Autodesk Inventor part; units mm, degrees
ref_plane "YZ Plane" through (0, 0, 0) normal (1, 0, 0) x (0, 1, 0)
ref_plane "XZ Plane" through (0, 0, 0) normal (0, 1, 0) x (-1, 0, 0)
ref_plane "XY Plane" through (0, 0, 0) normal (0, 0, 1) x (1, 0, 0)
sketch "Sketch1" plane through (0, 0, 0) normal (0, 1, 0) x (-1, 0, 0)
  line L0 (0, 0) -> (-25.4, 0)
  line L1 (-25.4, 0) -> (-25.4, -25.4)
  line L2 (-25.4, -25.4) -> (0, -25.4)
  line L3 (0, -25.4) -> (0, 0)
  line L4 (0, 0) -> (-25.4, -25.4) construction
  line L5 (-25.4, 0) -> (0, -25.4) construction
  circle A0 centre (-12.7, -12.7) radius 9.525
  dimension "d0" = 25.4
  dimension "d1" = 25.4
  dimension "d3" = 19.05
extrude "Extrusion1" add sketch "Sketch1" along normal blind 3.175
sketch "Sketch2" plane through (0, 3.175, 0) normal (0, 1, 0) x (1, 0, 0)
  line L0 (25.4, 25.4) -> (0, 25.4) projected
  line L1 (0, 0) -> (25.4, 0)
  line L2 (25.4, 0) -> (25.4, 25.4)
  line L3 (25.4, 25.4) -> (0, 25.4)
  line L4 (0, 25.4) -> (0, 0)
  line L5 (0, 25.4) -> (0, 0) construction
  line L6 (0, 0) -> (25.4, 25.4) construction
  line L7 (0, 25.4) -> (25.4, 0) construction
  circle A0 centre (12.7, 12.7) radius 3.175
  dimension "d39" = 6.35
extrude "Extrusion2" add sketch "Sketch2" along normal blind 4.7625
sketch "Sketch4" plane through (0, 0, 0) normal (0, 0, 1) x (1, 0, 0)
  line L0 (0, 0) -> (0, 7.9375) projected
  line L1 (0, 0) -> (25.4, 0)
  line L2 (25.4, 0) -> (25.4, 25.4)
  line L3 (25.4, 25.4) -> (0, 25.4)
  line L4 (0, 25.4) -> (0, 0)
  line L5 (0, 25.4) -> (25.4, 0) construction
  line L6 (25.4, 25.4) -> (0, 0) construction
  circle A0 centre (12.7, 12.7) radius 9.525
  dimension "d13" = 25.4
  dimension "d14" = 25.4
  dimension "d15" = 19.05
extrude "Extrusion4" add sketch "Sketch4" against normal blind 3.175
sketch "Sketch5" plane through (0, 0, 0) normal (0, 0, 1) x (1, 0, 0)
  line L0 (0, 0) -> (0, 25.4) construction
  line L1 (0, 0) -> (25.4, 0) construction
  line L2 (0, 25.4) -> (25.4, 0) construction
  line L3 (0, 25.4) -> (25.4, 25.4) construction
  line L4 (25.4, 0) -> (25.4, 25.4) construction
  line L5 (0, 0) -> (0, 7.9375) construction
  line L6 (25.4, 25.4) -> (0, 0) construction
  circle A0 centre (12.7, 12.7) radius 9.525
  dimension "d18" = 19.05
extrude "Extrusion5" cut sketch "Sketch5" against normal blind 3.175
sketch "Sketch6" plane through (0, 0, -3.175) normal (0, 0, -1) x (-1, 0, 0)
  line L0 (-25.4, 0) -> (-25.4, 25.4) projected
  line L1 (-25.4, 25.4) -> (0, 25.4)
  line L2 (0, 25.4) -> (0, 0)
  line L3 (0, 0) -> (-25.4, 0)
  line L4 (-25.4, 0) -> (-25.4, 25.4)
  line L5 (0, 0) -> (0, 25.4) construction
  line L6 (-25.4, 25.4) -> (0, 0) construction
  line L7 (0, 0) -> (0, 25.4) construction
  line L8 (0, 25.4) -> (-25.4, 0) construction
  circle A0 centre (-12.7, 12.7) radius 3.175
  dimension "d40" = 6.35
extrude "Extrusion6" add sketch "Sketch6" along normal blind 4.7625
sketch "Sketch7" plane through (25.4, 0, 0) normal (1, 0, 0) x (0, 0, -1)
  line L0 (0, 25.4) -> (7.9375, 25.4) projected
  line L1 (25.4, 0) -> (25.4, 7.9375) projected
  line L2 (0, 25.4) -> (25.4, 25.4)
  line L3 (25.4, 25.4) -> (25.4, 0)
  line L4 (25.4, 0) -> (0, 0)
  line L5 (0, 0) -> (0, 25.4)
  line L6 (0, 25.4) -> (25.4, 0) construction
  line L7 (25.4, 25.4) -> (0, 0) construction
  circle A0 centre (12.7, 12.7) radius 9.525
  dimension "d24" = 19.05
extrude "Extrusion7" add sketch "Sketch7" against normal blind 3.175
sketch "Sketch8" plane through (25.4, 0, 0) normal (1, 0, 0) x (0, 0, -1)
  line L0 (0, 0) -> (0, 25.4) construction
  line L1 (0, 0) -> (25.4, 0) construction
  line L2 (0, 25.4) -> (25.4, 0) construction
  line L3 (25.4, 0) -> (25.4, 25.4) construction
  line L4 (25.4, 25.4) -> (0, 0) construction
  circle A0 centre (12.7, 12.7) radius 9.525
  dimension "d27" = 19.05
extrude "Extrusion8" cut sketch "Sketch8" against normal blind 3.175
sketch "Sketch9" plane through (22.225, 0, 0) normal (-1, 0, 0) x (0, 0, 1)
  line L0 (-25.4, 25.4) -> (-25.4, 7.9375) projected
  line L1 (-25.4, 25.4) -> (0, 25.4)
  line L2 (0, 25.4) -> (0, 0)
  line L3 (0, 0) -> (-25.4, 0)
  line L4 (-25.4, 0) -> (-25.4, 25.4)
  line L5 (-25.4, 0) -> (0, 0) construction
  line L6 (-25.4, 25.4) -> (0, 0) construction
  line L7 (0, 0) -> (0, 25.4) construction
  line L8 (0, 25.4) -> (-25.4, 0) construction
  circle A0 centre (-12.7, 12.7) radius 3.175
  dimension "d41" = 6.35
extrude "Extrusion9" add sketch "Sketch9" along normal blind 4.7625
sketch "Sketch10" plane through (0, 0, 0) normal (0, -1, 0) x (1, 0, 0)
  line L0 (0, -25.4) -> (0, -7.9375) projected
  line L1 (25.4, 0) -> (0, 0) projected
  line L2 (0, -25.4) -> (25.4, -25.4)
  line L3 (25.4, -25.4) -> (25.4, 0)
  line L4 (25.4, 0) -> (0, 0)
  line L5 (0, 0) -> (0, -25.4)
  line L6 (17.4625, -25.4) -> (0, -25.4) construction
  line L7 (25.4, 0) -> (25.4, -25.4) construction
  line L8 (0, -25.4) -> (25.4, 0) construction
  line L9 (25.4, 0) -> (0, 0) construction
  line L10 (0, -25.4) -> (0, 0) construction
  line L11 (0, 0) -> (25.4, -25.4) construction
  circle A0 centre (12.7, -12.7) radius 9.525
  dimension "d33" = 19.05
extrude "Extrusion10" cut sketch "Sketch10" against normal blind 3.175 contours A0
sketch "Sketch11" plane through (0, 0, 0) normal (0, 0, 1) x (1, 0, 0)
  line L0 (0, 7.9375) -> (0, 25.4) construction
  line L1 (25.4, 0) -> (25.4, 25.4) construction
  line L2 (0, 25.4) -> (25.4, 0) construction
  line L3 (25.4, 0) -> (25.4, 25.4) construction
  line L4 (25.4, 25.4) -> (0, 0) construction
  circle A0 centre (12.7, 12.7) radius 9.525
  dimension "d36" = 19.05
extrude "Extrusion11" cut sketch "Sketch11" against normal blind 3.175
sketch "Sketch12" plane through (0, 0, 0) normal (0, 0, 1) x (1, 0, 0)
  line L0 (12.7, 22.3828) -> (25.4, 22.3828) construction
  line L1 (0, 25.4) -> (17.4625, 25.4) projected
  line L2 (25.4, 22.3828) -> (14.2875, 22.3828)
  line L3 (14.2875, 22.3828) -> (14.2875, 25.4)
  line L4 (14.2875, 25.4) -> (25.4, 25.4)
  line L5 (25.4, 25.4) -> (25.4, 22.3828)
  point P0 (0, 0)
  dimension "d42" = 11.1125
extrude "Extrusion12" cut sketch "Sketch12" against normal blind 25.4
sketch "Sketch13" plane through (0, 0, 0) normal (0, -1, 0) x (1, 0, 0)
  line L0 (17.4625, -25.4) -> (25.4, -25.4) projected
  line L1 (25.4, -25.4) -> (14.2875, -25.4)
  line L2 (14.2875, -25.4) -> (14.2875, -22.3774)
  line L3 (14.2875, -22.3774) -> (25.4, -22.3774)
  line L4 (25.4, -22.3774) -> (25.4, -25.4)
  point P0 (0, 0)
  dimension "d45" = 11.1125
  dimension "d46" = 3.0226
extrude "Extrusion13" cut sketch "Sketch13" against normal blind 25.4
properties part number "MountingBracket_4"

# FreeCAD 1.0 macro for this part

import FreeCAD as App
import Part
import Sketcher

V = App.Vector
Q = App.Units.Quantity

doc = App.newDocument("Part")
params = doc.addObject("Spreadsheet::Sheet", "Params")
for row, (alias, value) in enumerate([
    ("sketch1_diameter", "0.75 in"),
    ("sketch1_width", "1 in"),
    ("pad1_length", "0.125 in"),
    ("sketch2_diameter", "0.25 in"),
    ("sketch2_width", "1 in"),
    ("pad2_length", "0.1875 in"),
    ("sketch3_diameter", "0.75 in"),
    ("sketch3_width", "1 in"),
    ("pad3_length", "0.125 in"),
    ("sketch4_diameter", "0.75 in"),
    ("pocket1_length", "0.125 in"),
    ("sketch5_diameter", "0.25 in"),
    ("sketch5_width", "1 in"),
    ("pad4_length", "0.1875 in"),
    ("sketch6_diameter", "0.75 in"),
    ("sketch6_width", "1 in"),
    ("pad5_length", "0.125 in"),
    ("sketch7_diameter", "0.75 in"),
    ("pocket2_length", "0.125 in"),
    ("sketch8_diameter", "0.25 in"),
    ("sketch8_width", "1 in"),
    ("pad6_length", "0.1875 in"),
    ("sketch9_diameter", "0.75 in"),
    ("pocket3_length", "0.125 in"),
    ("sketch10_diameter", "0.75 in"),
    ("pocket4_length", "0.125 in"),
    ("sketch11_width", "0.4375 in"),
    ("pocket5_length", "1 in"),
    ("sketch12_width", "0.4375 in"),
    ("sketch12_height", "0.119 in"),
    ("pocket6_length", "1 in"),
], start=1):
    params.set(f"A{row}", alias)
    params.set(f"B{row}", "=" + value)
    params.setAlias(f"B{row}", alias)

body = doc.addObject("PartDesign::Body", "Body")

# Sketch on XZ plane
sketch1 = body.newObject("Sketcher::SketchObject", "Sketch")
sketch1.AttachmentSupport = (doc.getObject("XZ_Plane"), [""])
sketch1.MapMode = "FlatFace"
sketch1.addGeometry([
    Part.LineSegment(V(0, -25, 0), V(0, 0, 0)),  # 0
    Part.LineSegment(V(0, 0, 0), V(25, 0, 0)),  # 1
    Part.LineSegment(V(25, 0, 0), V(25, -25, 0)),  # 2
    Part.LineSegment(V(25, -25, 0), V(0, -25, 0)),  # 3
    Part.Circle(V(13, -13, 0), V(0, 0, 1), 10),  # 4
], False)
sketch1.addConstraint([
    Sketcher.Constraint("Coincident", 0, 2, 1, 1),
    Sketcher.Constraint("Coincident", 1, 2, 2, 1),
    Sketcher.Constraint("Coincident", 2, 2, 3, 1),
    Sketcher.Constraint("Coincident", 3, 2, 0, 1),
    Sketcher.Constraint("Vertical", 0),
    Sketcher.Constraint("Horizontal", 1),
    Sketcher.Constraint("Vertical", 2),
    Sketcher.Constraint("Horizontal", 3),
    Sketcher.Constraint("Coincident", 0, 2, -1, 1),
    Sketcher.Constraint("Equal", 3, 0),
    Sketcher.Constraint("Diameter", 4, Q("0.75 in")),
    Sketcher.Constraint("DistanceX", 1, 1, 1, 2, Q("1 in")),
    Sketcher.Constraint("DistanceX", -1, 1, 4, 3, Q("0.5 in")),
    Sketcher.Constraint("DistanceY", 4, 3, -1, 1, Q("0.5 in")),
])
sketch1.setExpression("Constraints[10]", "Params.sketch1_diameter")
sketch1.setExpression("Constraints[11]", "Params.sketch1_width")
pad1 = body.newObject("PartDesign::Pad", "Pad")
pad1.Profile = sketch1
pad1.setExpression("Length", "Params.pad1_length")
pad1.Reversed = True

# Sketch on XZ plane
sketch2 = body.newObject("Sketcher::SketchObject", "Sketch001")
sketch2.AttachmentSupport = (doc.getObject("XZ_Plane"), [""])
sketch2.MapMode = "FlatFace"
sketch2.AttachmentOffset = App.Placement(V(0, 0, -0.125 * 25.4), App.Rotation())
sketch2.addGeometry([
    Part.LineSegment(V(25.4, 0, 0), V(25.4, -25.4, 0)),  # 0
    Part.LineSegment(V(25.4, -25.4, 0), V(0, -25.4, 0)),  # 1
    Part.LineSegment(V(0, -25.4, 0), V(0, 0, 0)),  # 2
    Part.LineSegment(V(0, 0, 0), V(25.4, 0, 0)),  # 3
    Part.Circle(V(12.7, -12.7, 0), V(0, 0, 1), 3.2),  # 4
], False)
sketch2.addConstraint([
    Sketcher.Constraint("Coincident", 0, 2, 1, 1),
    Sketcher.Constraint("Coincident", 1, 2, 2, 1),
    Sketcher.Constraint("Coincident", 2, 2, 3, 1),
    Sketcher.Constraint("Coincident", 3, 2, 0, 1),
    Sketcher.Constraint("Vertical", 0),
    Sketcher.Constraint("Horizontal", 1),
    Sketcher.Constraint("Vertical", 2),
    Sketcher.Constraint("Horizontal", 3),
    Sketcher.Constraint("Coincident", 2, 2, -1, 1),
    Sketcher.Constraint("Equal", 3, 0),
    Sketcher.Constraint("Diameter", 4, Q("0.25 in")),
    Sketcher.Constraint("DistanceX", 1, 2, 1, 1, Q("1 in")),
    Sketcher.Constraint("DistanceX", -1, 1, 4, 3, Q("0.5 in")),
    Sketcher.Constraint("DistanceY", 4, 3, -1, 1, Q("0.5 in")),
])
sketch2.setExpression("Constraints[10]", "Params.sketch2_diameter")
sketch2.setExpression("Constraints[11]", "Params.sketch2_width")
pad2 = body.newObject("PartDesign::Pad", "Pad001")
pad2.Profile = sketch2
pad2.setExpression("Length", "Params.pad2_length")
pad2.Reversed = True

# Sketch on XY plane
sketch3 = body.newObject("Sketcher::SketchObject", "Sketch002")
sketch3.AttachmentSupport = (doc.getObject("XY_Plane"), [""])
sketch3.MapMode = "FlatFace"
sketch3.addGeometry([
    Part.LineSegment(V(0, 25, 0), V(0, 0, 0)),  # 0
    Part.LineSegment(V(0, 0, 0), V(25, 0, 0)),  # 1
    Part.LineSegment(V(25, 0, 0), V(25, 25, 0)),  # 2
    Part.LineSegment(V(25, 25, 0), V(0, 25, 0)),  # 3
    Part.Circle(V(13, 13, 0), V(0, 0, 1), 10),  # 4
], False)
sketch3.addConstraint([
    Sketcher.Constraint("Coincident", 0, 2, 1, 1),
    Sketcher.Constraint("Coincident", 1, 2, 2, 1),
    Sketcher.Constraint("Coincident", 2, 2, 3, 1),
    Sketcher.Constraint("Coincident", 3, 2, 0, 1),
    Sketcher.Constraint("Vertical", 0),
    Sketcher.Constraint("Horizontal", 1),
    Sketcher.Constraint("Vertical", 2),
    Sketcher.Constraint("Horizontal", 3),
    Sketcher.Constraint("Coincident", 0, 2, -1, 1),
    Sketcher.Constraint("Equal", 3, 0),
    Sketcher.Constraint("Diameter", 4, Q("0.75 in")),
    Sketcher.Constraint("DistanceX", 1, 1, 1, 2, Q("1 in")),
    Sketcher.Constraint("DistanceX", -1, 1, 4, 3, Q("0.5 in")),
    Sketcher.Constraint("DistanceY", -1, 1, 4, 3, Q("0.5 in")),
])
sketch3.setExpression("Constraints[10]", "Params.sketch3_diameter")
sketch3.setExpression("Constraints[11]", "Params.sketch3_width")
pad3 = body.newObject("PartDesign::Pad", "Pad002")
pad3.Profile = sketch3
pad3.setExpression("Length", "Params.pad3_length")
pad3.Reversed = True

# Sketch on XY plane
sketch4 = body.newObject("Sketcher::SketchObject", "Sketch003")
sketch4.AttachmentSupport = (doc.getObject("XY_Plane"), [""])
sketch4.MapMode = "FlatFace"
sketch4.addGeometry(Part.Circle(V(13, 13, 0), V(0, 0, 1), 10), False)
sketch4.addConstraint([
    Sketcher.Constraint("Diameter", 0, Q("0.75 in")),
    Sketcher.Constraint("DistanceX", -1, 1, 0, 3, Q("0.5 in")),
    Sketcher.Constraint("DistanceY", -1, 1, 0, 3, Q("0.5 in")),
])
sketch4.setExpression("Constraints[0]", "Params.sketch4_diameter")
pocket1 = body.newObject("PartDesign::Pocket", "Pocket")
pocket1.Profile = sketch4
pocket1.setExpression("Length", "Params.pocket1_length")

# Sketch on XY plane
sketch5 = body.newObject("Sketcher::SketchObject", "Sketch004")
sketch5.AttachmentSupport = (doc.getObject("XY_Plane"), [""])
sketch5.MapMode = "FlatFace"
sketch5.AttachmentOffset = App.Placement(V(0, 0, -0.125 * 25.4), App.Rotation())
sketch5.addGeometry([
    Part.LineSegment(V(25.4, 25.4, 0), V(25.4, 0, 0)),  # 0
    Part.LineSegment(V(25.4, 0, 0), V(0, 0, 0)),  # 1
    Part.LineSegment(V(0, 0, 0), V(0, 25.4, 0)),  # 2
    Part.LineSegment(V(0, 25.4, 0), V(25.4, 25.4, 0)),  # 3
    Part.Circle(V(12.7, 12.7, 0), V(0, 0, 1), 3.2),  # 4
], False)
sketch5.addConstraint([
    Sketcher.Constraint("Coincident", 0, 2, 1, 1),
    Sketcher.Constraint("Coincident", 1, 2, 2, 1),
    Sketcher.Constraint("Coincident", 2, 2, 3, 1),
    Sketcher.Constraint("Coincident", 3, 2, 0, 1),
    Sketcher.Constraint("Vertical", 0),
    Sketcher.Constraint("Horizontal", 1),
    Sketcher.Constraint("Vertical", 2),
    Sketcher.Constraint("Horizontal", 3),
    Sketcher.Constraint("Coincident", 1, 2, -1, 1),
    Sketcher.Constraint("Equal", 3, 0),
    Sketcher.Constraint("Diameter", 4, Q("0.25 in")),
    Sketcher.Constraint("DistanceX", 1, 2, 1, 1, Q("1 in")),
    Sketcher.Constraint("DistanceX", -1, 1, 4, 3, Q("0.5 in")),
    Sketcher.Constraint("DistanceY", -1, 1, 4, 3, Q("0.5 in")),
])
sketch5.setExpression("Constraints[10]", "Params.sketch5_diameter")
sketch5.setExpression("Constraints[11]", "Params.sketch5_width")
pad4 = body.newObject("PartDesign::Pad", "Pad003")
pad4.Profile = sketch5
pad4.setExpression("Length", "Params.pad4_length")
pad4.Reversed = True

# Sketch on YZ plane
sketch6 = body.newObject("Sketcher::SketchObject", "Sketch005")
sketch6.AttachmentSupport = (doc.getObject("YZ_Plane"), [""])
sketch6.MapMode = "FlatFace"
sketch6.AttachmentOffset = App.Placement(V(0, 0, 1 * 25.4), App.Rotation())
sketch6.addGeometry([
    Part.LineSegment(V(25, -25, 0), V(25, 0, 0)),  # 0
    Part.LineSegment(V(25, 0, 0), V(0, 0, 0)),  # 1
    Part.LineSegment(V(0, 0, 0), V(0, -25, 0)),  # 2
    Part.LineSegment(V(0, -25, 0), V(25, -25, 0)),  # 3
    Part.Circle(V(13, -13, 0), V(0, 0, 1), 10),  # 4
], False)
sketch6.addConstraint([
    Sketcher.Constraint("Coincident", 0, 2, 1, 1),
    Sketcher.Constraint("Coincident", 1, 2, 2, 1),
    Sketcher.Constraint("Coincident", 2, 2, 3, 1),
    Sketcher.Constraint("Coincident", 3, 2, 0, 1),
    Sketcher.Constraint("Vertical", 0),
    Sketcher.Constraint("Horizontal", 1),
    Sketcher.Constraint("Vertical", 2),
    Sketcher.Constraint("Horizontal", 3),
    Sketcher.Constraint("Coincident", 1, 2, -1, 1),
    Sketcher.Constraint("Equal", 3, 0),
    Sketcher.Constraint("Diameter", 4, Q("0.75 in")),
    Sketcher.Constraint("DistanceX", 1, 2, 1, 1, Q("1 in")),
    Sketcher.Constraint("DistanceX", -1, 1, 4, 3, Q("0.5 in")),
    Sketcher.Constraint("DistanceY", 4, 3, -1, 1, Q("0.5 in")),
])
sketch6.setExpression("Constraints[10]", "Params.sketch6_diameter")
sketch6.setExpression("Constraints[11]", "Params.sketch6_width")
pad5 = body.newObject("PartDesign::Pad", "Pad004")
pad5.Profile = sketch6
pad5.setExpression("Length", "Params.pad5_length")
pad5.Reversed = True

# Sketch on YZ plane
sketch7 = body.newObject("Sketcher::SketchObject", "Sketch006")
sketch7.AttachmentSupport = (doc.getObject("YZ_Plane"), [""])
sketch7.MapMode = "FlatFace"
sketch7.AttachmentOffset = App.Placement(V(0, 0, 1 * 25.4), App.Rotation())
sketch7.addGeometry(Part.Circle(V(13, -13, 0), V(0, 0, 1), 10), False)
sketch7.addConstraint([
    Sketcher.Constraint("Diameter", 0, Q("0.75 in")),
    Sketcher.Constraint("DistanceX", -1, 1, 0, 3, Q("0.5 in")),
    Sketcher.Constraint("DistanceY", 0, 3, -1, 1, Q("0.5 in")),
])
sketch7.setExpression("Constraints[0]", "Params.sketch7_diameter")
pocket2 = body.newObject("PartDesign::Pocket", "Pocket001")
pocket2.Profile = sketch7
pocket2.setExpression("Length", "Params.pocket2_length")

# Sketch on YZ plane
sketch8 = body.newObject("Sketcher::SketchObject", "Sketch007")
sketch8.AttachmentSupport = (doc.getObject("YZ_Plane"), [""])
sketch8.MapMode = "FlatFace"
sketch8.AttachmentOffset = App.Placement(V(0, 0, 0.875 * 25.4), App.Rotation())
sketch8.addGeometry([
    Part.LineSegment(V(25.4, 0, 0), V(25.4, -25.4, 0)),  # 0
    Part.LineSegment(V(25.4, -25.4, 0), V(0, -25.4, 0)),  # 1
    Part.LineSegment(V(0, -25.4, 0), V(0, 0, 0)),  # 2
    Part.LineSegment(V(0, 0, 0), V(25.4, 0, 0)),  # 3
    Part.Circle(V(12.7, -12.7, 0), V(0, 0, 1), 3.2),  # 4
], False)
sketch8.addConstraint([
    Sketcher.Constraint("Coincident", 0, 2, 1, 1),
    Sketcher.Constraint("Coincident", 1, 2, 2, 1),
    Sketcher.Constraint("Coincident", 2, 2, 3, 1),
    Sketcher.Constraint("Coincident", 3, 2, 0, 1),
    Sketcher.Constraint("Vertical", 0),
    Sketcher.Constraint("Horizontal", 1),
    Sketcher.Constraint("Vertical", 2),
    Sketcher.Constraint("Horizontal", 3),
    Sketcher.Constraint("Coincident", 2, 2, -1, 1),
    Sketcher.Constraint("Equal", 3, 0),
    Sketcher.Constraint("Diameter", 4, Q("0.25 in")),
    Sketcher.Constraint("DistanceX", 1, 2, 1, 1, Q("1 in")),
    Sketcher.Constraint("DistanceX", -1, 1, 4, 3, Q("0.5 in")),
    Sketcher.Constraint("DistanceY", 4, 3, -1, 1, Q("0.5 in")),
])
sketch8.setExpression("Constraints[10]", "Params.sketch8_diameter")
sketch8.setExpression("Constraints[11]", "Params.sketch8_width")
pad6 = body.newObject("PartDesign::Pad", "Pad005")
pad6.Profile = sketch8
pad6.setExpression("Length", "Params.pad6_length")
pad6.Reversed = True

# Sketch on XZ plane
sketch9 = body.newObject("Sketcher::SketchObject", "Sketch008")
sketch9.AttachmentSupport = (doc.getObject("XZ_Plane"), [""])
sketch9.MapMode = "FlatFace"
sketch9.addGeometry(Part.Circle(V(13, -13, 0), V(0, 0, 1), 10), False)
sketch9.addConstraint([
    Sketcher.Constraint("Diameter", 0, Q("0.75 in")),
    Sketcher.Constraint("DistanceX", -1, 1, 0, 3, Q("0.5 in")),
    Sketcher.Constraint("DistanceY", 0, 3, -1, 1, Q("0.5 in")),
])
sketch9.setExpression("Constraints[0]", "Params.sketch9_diameter")
pocket3 = body.newObject("PartDesign::Pocket", "Pocket002")
pocket3.Profile = sketch9
pocket3.setExpression("Length", "Params.pocket3_length")

# Sketch on XY plane
sketch10 = body.newObject("Sketcher::SketchObject", "Sketch009")
sketch10.AttachmentSupport = (doc.getObject("XY_Plane"), [""])
sketch10.MapMode = "FlatFace"
sketch10.addGeometry(Part.Circle(V(13, 13, 0), V(0, 0, 1), 10), False)
sketch10.addConstraint([
    Sketcher.Constraint("Diameter", 0, Q("0.75 in")),
    Sketcher.Constraint("DistanceX", -1, 1, 0, 3, Q("0.5 in")),
    Sketcher.Constraint("DistanceY", -1, 1, 0, 3, Q("0.5 in")),
])
sketch10.setExpression("Constraints[0]", "Params.sketch10_diameter")
pocket4 = body.newObject("PartDesign::Pocket", "Pocket003")
pocket4.Profile = sketch10
pocket4.setExpression("Length", "Params.pocket4_length")

# Sketch on XY plane
sketch11 = body.newObject("Sketcher::SketchObject", "Sketch010")
sketch11.AttachmentSupport = (doc.getObject("XY_Plane"), [""])
sketch11.MapMode = "FlatFace"
sketch11.addGeometry([
    Part.LineSegment(V(25.4, 25.4, 0), V(14.3, 25.4, 0)),
    Part.LineSegment(V(14.3, 25.4, 0), V(14.3, 22.4, 0)),
    Part.LineSegment(V(14.3, 22.4, 0), V(25.4, 22.4, 0)),
    Part.LineSegment(V(25.4, 22.4, 0), V(25.4, 25.4, 0)),
], False)
sketch11.addConstraint([
    Sketcher.Constraint("Coincident", 0, 2, 1, 1),
    Sketcher.Constraint("Coincident", 1, 2, 2, 1),
    Sketcher.Constraint("Coincident", 2, 2, 3, 1),
    Sketcher.Constraint("Coincident", 3, 2, 0, 1),
    Sketcher.Constraint("Horizontal", 0),
    Sketcher.Constraint("Vertical", 1),
    Sketcher.Constraint("Horizontal", 2),
    Sketcher.Constraint("Vertical", 3),
    Sketcher.Constraint("DistanceX", 0, 2, 0, 1, Q("0.4375 in")),
    Sketcher.Constraint("DistanceY", -1, 1, 0, 2, Q("1 in")),
    Sketcher.Constraint("DistanceX", -1, 1, 2, 2, Q("1 in")),
    Sketcher.Constraint("DistanceY", 1, 2, 1, 1, 3.0172),
])
sketch11.setExpression("Constraints[8]", "Params.sketch11_width")
pocket5 = body.newObject("PartDesign::Pocket", "Pocket004")
pocket5.Profile = sketch11
pocket5.setExpression("Length", "Params.pocket5_length")

# Sketch on XZ plane
sketch12 = body.newObject("Sketcher::SketchObject", "Sketch011")
sketch12.AttachmentSupport = (doc.getObject("XZ_Plane"), [""])
sketch12.MapMode = "FlatFace"
sketch12.addGeometry([
    Part.LineSegment(V(14.3, -25.4, 0), V(25.4, -25.4, 0)),
    Part.LineSegment(V(25.4, -25.4, 0), V(25.4, -22.4, 0)),
    Part.LineSegment(V(25.4, -22.4, 0), V(14.3, -22.4, 0)),
    Part.LineSegment(V(14.3, -22.4, 0), V(14.3, -25.4, 0)),
], False)
sketch12.addConstraint([
    Sketcher.Constraint("Coincident", 0, 2, 1, 1),
    Sketcher.Constraint("Coincident", 1, 2, 2, 1),
    Sketcher.Constraint("Coincident", 2, 2, 3, 1),
    Sketcher.Constraint("Coincident", 3, 2, 0, 1),
    Sketcher.Constraint("Horizontal", 0),
    Sketcher.Constraint("Vertical", 1),
    Sketcher.Constraint("Horizontal", 2),
    Sketcher.Constraint("Vertical", 3),
    Sketcher.Constraint("DistanceX", 0, 1, 0, 2, Q("0.4375 in")),
    Sketcher.Constraint("DistanceY", 1, 1, 1, 2, Q("0.119 in")),
    Sketcher.Constraint("DistanceX", -1, 1, 0, 2, Q("1 in")),
    Sketcher.Constraint("DistanceY", 0, 2, -1, 1, Q("1 in")),
])
sketch12.setExpression("Constraints[8]", "Params.sketch12_width")
sketch12.setExpression("Constraints[9]", "Params.sketch12_height")
pocket6 = body.newObject("PartDesign::Pocket", "Pocket005")
pocket6.Profile = sketch12
pocket6.setExpression("Length", "Params.pocket6_length")

doc.recompute()
